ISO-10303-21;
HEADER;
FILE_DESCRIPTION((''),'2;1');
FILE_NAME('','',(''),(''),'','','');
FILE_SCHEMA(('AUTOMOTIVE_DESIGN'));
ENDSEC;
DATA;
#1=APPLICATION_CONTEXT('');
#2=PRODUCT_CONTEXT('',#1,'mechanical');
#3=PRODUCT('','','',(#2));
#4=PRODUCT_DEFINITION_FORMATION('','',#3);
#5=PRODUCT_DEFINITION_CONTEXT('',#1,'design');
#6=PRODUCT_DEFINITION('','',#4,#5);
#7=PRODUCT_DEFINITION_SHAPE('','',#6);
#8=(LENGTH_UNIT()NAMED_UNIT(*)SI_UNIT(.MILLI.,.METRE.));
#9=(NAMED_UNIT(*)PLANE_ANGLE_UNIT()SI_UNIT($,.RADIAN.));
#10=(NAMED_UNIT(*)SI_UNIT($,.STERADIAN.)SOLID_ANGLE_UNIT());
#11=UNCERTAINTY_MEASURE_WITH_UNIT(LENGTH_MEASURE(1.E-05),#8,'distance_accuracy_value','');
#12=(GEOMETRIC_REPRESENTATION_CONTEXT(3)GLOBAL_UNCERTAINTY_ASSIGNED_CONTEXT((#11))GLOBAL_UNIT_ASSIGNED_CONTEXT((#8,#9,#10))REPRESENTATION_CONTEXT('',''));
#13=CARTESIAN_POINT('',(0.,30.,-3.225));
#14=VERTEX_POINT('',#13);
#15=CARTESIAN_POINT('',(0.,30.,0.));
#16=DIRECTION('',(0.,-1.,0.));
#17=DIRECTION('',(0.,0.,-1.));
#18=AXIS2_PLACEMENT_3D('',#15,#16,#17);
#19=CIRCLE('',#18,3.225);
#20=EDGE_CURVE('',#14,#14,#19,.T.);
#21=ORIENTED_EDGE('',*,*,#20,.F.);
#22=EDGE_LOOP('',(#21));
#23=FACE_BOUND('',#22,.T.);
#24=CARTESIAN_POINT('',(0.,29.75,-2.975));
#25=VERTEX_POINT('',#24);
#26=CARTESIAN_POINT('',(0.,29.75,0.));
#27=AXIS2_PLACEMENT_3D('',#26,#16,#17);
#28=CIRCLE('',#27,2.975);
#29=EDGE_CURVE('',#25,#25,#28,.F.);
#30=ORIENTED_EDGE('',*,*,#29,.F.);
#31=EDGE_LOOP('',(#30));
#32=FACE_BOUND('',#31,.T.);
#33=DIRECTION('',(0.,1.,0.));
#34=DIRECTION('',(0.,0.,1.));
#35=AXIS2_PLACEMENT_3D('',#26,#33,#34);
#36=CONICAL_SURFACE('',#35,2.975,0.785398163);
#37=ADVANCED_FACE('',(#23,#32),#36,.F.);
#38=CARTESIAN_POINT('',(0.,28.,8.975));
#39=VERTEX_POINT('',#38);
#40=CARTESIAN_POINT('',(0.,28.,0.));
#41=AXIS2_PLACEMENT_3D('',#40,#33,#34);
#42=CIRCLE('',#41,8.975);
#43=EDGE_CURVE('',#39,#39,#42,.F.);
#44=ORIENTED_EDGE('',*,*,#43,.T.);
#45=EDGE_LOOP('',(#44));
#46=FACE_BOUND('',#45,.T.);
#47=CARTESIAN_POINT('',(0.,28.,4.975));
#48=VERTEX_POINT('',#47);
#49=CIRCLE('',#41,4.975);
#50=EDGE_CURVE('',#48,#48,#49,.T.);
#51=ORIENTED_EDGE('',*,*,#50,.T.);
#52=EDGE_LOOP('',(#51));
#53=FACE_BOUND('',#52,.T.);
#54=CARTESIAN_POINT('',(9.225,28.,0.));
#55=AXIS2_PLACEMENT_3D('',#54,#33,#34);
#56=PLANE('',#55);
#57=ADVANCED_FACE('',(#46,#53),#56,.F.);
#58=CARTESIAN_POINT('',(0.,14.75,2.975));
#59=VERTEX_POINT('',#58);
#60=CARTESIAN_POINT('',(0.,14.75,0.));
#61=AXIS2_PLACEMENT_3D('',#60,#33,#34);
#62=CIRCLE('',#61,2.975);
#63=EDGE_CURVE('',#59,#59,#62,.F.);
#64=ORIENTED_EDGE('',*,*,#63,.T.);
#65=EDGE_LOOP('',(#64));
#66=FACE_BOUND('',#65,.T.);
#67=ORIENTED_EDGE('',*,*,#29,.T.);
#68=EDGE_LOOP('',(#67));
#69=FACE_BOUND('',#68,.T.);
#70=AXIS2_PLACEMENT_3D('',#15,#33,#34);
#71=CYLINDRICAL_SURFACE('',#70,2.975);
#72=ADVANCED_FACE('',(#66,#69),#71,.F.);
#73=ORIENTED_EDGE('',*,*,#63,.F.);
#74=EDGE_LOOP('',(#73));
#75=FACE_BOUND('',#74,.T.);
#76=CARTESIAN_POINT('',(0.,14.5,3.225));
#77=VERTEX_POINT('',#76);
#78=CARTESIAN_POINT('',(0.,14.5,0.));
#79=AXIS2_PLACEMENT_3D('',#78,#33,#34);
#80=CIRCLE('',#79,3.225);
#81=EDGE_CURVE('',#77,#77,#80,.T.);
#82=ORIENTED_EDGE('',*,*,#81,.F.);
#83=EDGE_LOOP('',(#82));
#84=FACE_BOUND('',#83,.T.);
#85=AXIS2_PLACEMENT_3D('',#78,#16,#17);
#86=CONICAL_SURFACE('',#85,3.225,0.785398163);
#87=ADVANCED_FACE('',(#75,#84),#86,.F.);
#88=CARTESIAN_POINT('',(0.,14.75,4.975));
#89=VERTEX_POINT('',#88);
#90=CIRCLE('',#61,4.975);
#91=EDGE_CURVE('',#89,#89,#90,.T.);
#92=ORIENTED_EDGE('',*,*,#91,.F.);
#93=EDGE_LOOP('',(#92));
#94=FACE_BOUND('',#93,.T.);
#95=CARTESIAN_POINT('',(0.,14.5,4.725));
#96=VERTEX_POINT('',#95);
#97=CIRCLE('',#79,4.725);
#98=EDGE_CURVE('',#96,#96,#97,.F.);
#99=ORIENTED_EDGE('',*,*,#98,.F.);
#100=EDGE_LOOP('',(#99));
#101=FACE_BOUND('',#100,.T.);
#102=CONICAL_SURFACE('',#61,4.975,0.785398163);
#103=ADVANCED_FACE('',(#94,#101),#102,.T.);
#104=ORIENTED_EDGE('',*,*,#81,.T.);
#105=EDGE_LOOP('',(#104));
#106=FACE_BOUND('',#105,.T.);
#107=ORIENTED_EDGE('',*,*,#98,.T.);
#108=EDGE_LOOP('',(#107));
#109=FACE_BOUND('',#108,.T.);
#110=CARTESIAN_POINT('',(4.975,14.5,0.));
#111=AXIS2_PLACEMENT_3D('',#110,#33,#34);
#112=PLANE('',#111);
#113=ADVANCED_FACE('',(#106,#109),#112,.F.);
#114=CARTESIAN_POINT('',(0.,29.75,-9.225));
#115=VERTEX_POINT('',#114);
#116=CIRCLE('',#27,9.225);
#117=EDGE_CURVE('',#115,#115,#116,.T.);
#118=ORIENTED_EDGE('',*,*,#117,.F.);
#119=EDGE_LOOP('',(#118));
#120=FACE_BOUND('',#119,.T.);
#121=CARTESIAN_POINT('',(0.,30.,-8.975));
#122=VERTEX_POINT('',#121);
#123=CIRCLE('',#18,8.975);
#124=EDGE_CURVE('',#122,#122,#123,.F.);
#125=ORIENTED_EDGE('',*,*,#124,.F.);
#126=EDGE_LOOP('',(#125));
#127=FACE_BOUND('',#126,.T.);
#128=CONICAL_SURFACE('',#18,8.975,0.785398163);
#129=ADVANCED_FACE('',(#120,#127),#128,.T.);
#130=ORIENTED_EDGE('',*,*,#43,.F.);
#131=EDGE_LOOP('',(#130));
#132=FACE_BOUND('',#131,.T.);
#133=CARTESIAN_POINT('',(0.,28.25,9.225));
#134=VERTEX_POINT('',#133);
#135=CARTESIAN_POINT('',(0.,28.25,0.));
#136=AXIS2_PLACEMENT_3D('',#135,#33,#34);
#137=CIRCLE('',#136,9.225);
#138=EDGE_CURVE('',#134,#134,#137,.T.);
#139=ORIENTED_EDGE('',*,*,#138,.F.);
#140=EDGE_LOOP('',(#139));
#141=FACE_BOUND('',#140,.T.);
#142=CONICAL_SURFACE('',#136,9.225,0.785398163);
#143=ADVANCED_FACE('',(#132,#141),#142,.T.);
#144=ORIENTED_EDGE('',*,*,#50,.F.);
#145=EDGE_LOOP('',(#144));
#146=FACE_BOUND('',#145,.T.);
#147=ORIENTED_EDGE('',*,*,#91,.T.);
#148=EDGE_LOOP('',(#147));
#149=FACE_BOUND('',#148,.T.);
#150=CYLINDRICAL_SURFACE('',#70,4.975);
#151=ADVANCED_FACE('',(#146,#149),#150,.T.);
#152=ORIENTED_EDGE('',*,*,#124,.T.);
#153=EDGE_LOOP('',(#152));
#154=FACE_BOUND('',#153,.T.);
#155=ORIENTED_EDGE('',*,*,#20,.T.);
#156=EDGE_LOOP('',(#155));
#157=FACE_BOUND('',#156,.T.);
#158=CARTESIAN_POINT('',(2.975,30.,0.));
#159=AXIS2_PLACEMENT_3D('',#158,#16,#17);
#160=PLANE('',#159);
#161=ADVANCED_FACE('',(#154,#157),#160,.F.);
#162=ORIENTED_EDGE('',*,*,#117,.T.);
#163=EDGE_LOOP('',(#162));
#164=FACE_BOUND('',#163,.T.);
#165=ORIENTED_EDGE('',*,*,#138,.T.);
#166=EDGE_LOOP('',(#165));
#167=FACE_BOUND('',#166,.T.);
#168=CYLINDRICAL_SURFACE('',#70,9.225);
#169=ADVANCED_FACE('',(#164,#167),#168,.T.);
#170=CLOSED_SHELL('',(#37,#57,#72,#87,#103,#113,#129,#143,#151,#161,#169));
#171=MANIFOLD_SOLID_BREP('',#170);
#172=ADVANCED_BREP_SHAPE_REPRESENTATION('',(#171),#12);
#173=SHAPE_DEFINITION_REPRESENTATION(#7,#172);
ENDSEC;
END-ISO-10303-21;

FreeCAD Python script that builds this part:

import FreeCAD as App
import Part
import Sketcher

V = App.Vector


def edges_at(feature, points):
    """Names of the edges that pass closest to the given points."""
    edges = feature.Shape.Edges
    near = lambda p: min(range(len(edges)), key=lambda i: edges[i].distToShape(Part.Vertex(*p))[0])
    return sorted({f"Edge{near(p) + 1}" for p in points})


def add_polygon(sketch, points):
    """Adds a closed chain of lines whose ends are joined by coincident constraints."""
    first, n = sketch.GeometryCount, len(points)
    for a, b in zip(points, points[1:] + points[:1]):
        sketch.addGeometry(Part.LineSegment(App.Vector(*a, 0), App.Vector(*b, 0)), False)
    for i in range(n):
        sketch.addConstraint(Sketcher.Constraint("Coincident", first + i, 2, first + (i + 1) % n, 1))

doc = App.newDocument("Part")
body = doc.addObject("PartDesign::Body", "Body")

# Sketch on XY plane
sketch1 = body.newObject("Sketcher::SketchObject", "Sketch")
sketch1.AttachmentSupport = (doc.getObject("XY_Plane"), [""])
sketch1.MapMode = "FlatFace"
add_polygon(sketch1, [(3, 30), (3, 14.5), (5, 14.5), (5, 28), (9.2, 28), (9.2, 30)])  # lines 0-5
sketch1.addConstraint([
    Sketcher.Constraint("Vertical", 0),
    Sketcher.Constraint("Horizontal", 1),
    Sketcher.Constraint("Vertical", 2),
    Sketcher.Constraint("Horizontal", 3),
    Sketcher.Constraint("Vertical", 4),
    Sketcher.Constraint("Horizontal", 5),
    Sketcher.Constraint("Equal", 1, 4),
    Sketcher.Constraint("DistanceX", 1, 1, 1, 2, 2.0),
    Sketcher.Constraint("DistanceY", 0, 2, 0, 1, 15.5),
    Sketcher.Constraint("DistanceY", -1, 1, 2, 2, 28.0),
    Sketcher.Constraint("DistanceX", 3, 1, 3, 2, 4.25),
    Sketcher.Constraint("DistanceX", -1, 1, 0, 2, 2.975),
])
revolution = body.newObject("PartDesign::Revolution", "Revolution")
revolution.Profile = sketch1
revolution.ReferenceAxis = (sketch1, ["V_Axis"])
revolution.Angle = 360
doc.recompute()

chamfer = body.newObject("PartDesign::Chamfer", "Chamfer")
chamfer.Base = (revolution, edges_at(revolution, [
    (0, 14.5, -2.975),
    (0, 30, -2.975),
    (0, 30, -9.225),
    (0, 28, -9.225),
    (0, 14.5, -4.975),
]))
chamfer.Size = 0.25

doc.recompute()
